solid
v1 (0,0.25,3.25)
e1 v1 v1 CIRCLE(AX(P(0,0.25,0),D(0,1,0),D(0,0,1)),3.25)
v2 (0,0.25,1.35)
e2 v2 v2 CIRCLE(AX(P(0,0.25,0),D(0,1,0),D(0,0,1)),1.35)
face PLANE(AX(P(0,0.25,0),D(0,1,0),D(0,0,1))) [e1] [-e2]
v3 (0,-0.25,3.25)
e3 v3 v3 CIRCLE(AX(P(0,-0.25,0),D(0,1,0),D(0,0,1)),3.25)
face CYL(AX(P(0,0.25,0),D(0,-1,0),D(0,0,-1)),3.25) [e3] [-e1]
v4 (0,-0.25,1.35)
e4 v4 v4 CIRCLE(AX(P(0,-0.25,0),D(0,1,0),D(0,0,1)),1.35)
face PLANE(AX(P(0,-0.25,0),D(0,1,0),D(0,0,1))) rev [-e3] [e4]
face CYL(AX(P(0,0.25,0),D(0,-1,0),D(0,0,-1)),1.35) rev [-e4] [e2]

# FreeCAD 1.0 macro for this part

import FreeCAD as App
import Part
import Sketcher

doc = App.newDocument("Part")
body = doc.addObject("PartDesign::Body", "Body")

sketch1 = body.newObject("Sketcher::SketchObject", "Sketch")
sketch1.AttachmentSupport = (doc.getObject("XZ_Plane"), [""])
sketch1.MapMode = "FlatFace"
sketch1.addGeometry([
    Part.Circle(App.Vector(0, 0, 0), App.Vector(0, 0, 1), 3.25),
    Part.Circle(App.Vector(0, 0, 0), App.Vector(0, 0, 1), 1.35),
], False)
sketch1.addConstraint([
    Sketcher.Constraint("Coincident", 0, 3, -1, 1),
    Sketcher.Constraint("Coincident", 1, 3, -1, 1),
    Sketcher.Constraint("Diameter", 0, 6.5),
    Sketcher.Constraint("Diameter", 1, 2.7),
])
pad1 = body.newObject("PartDesign::Pad", "Pad")
pad1.Profile = sketch1
pad1.Length = 0.5
pad1.Midplane = True

doc.recompute()
